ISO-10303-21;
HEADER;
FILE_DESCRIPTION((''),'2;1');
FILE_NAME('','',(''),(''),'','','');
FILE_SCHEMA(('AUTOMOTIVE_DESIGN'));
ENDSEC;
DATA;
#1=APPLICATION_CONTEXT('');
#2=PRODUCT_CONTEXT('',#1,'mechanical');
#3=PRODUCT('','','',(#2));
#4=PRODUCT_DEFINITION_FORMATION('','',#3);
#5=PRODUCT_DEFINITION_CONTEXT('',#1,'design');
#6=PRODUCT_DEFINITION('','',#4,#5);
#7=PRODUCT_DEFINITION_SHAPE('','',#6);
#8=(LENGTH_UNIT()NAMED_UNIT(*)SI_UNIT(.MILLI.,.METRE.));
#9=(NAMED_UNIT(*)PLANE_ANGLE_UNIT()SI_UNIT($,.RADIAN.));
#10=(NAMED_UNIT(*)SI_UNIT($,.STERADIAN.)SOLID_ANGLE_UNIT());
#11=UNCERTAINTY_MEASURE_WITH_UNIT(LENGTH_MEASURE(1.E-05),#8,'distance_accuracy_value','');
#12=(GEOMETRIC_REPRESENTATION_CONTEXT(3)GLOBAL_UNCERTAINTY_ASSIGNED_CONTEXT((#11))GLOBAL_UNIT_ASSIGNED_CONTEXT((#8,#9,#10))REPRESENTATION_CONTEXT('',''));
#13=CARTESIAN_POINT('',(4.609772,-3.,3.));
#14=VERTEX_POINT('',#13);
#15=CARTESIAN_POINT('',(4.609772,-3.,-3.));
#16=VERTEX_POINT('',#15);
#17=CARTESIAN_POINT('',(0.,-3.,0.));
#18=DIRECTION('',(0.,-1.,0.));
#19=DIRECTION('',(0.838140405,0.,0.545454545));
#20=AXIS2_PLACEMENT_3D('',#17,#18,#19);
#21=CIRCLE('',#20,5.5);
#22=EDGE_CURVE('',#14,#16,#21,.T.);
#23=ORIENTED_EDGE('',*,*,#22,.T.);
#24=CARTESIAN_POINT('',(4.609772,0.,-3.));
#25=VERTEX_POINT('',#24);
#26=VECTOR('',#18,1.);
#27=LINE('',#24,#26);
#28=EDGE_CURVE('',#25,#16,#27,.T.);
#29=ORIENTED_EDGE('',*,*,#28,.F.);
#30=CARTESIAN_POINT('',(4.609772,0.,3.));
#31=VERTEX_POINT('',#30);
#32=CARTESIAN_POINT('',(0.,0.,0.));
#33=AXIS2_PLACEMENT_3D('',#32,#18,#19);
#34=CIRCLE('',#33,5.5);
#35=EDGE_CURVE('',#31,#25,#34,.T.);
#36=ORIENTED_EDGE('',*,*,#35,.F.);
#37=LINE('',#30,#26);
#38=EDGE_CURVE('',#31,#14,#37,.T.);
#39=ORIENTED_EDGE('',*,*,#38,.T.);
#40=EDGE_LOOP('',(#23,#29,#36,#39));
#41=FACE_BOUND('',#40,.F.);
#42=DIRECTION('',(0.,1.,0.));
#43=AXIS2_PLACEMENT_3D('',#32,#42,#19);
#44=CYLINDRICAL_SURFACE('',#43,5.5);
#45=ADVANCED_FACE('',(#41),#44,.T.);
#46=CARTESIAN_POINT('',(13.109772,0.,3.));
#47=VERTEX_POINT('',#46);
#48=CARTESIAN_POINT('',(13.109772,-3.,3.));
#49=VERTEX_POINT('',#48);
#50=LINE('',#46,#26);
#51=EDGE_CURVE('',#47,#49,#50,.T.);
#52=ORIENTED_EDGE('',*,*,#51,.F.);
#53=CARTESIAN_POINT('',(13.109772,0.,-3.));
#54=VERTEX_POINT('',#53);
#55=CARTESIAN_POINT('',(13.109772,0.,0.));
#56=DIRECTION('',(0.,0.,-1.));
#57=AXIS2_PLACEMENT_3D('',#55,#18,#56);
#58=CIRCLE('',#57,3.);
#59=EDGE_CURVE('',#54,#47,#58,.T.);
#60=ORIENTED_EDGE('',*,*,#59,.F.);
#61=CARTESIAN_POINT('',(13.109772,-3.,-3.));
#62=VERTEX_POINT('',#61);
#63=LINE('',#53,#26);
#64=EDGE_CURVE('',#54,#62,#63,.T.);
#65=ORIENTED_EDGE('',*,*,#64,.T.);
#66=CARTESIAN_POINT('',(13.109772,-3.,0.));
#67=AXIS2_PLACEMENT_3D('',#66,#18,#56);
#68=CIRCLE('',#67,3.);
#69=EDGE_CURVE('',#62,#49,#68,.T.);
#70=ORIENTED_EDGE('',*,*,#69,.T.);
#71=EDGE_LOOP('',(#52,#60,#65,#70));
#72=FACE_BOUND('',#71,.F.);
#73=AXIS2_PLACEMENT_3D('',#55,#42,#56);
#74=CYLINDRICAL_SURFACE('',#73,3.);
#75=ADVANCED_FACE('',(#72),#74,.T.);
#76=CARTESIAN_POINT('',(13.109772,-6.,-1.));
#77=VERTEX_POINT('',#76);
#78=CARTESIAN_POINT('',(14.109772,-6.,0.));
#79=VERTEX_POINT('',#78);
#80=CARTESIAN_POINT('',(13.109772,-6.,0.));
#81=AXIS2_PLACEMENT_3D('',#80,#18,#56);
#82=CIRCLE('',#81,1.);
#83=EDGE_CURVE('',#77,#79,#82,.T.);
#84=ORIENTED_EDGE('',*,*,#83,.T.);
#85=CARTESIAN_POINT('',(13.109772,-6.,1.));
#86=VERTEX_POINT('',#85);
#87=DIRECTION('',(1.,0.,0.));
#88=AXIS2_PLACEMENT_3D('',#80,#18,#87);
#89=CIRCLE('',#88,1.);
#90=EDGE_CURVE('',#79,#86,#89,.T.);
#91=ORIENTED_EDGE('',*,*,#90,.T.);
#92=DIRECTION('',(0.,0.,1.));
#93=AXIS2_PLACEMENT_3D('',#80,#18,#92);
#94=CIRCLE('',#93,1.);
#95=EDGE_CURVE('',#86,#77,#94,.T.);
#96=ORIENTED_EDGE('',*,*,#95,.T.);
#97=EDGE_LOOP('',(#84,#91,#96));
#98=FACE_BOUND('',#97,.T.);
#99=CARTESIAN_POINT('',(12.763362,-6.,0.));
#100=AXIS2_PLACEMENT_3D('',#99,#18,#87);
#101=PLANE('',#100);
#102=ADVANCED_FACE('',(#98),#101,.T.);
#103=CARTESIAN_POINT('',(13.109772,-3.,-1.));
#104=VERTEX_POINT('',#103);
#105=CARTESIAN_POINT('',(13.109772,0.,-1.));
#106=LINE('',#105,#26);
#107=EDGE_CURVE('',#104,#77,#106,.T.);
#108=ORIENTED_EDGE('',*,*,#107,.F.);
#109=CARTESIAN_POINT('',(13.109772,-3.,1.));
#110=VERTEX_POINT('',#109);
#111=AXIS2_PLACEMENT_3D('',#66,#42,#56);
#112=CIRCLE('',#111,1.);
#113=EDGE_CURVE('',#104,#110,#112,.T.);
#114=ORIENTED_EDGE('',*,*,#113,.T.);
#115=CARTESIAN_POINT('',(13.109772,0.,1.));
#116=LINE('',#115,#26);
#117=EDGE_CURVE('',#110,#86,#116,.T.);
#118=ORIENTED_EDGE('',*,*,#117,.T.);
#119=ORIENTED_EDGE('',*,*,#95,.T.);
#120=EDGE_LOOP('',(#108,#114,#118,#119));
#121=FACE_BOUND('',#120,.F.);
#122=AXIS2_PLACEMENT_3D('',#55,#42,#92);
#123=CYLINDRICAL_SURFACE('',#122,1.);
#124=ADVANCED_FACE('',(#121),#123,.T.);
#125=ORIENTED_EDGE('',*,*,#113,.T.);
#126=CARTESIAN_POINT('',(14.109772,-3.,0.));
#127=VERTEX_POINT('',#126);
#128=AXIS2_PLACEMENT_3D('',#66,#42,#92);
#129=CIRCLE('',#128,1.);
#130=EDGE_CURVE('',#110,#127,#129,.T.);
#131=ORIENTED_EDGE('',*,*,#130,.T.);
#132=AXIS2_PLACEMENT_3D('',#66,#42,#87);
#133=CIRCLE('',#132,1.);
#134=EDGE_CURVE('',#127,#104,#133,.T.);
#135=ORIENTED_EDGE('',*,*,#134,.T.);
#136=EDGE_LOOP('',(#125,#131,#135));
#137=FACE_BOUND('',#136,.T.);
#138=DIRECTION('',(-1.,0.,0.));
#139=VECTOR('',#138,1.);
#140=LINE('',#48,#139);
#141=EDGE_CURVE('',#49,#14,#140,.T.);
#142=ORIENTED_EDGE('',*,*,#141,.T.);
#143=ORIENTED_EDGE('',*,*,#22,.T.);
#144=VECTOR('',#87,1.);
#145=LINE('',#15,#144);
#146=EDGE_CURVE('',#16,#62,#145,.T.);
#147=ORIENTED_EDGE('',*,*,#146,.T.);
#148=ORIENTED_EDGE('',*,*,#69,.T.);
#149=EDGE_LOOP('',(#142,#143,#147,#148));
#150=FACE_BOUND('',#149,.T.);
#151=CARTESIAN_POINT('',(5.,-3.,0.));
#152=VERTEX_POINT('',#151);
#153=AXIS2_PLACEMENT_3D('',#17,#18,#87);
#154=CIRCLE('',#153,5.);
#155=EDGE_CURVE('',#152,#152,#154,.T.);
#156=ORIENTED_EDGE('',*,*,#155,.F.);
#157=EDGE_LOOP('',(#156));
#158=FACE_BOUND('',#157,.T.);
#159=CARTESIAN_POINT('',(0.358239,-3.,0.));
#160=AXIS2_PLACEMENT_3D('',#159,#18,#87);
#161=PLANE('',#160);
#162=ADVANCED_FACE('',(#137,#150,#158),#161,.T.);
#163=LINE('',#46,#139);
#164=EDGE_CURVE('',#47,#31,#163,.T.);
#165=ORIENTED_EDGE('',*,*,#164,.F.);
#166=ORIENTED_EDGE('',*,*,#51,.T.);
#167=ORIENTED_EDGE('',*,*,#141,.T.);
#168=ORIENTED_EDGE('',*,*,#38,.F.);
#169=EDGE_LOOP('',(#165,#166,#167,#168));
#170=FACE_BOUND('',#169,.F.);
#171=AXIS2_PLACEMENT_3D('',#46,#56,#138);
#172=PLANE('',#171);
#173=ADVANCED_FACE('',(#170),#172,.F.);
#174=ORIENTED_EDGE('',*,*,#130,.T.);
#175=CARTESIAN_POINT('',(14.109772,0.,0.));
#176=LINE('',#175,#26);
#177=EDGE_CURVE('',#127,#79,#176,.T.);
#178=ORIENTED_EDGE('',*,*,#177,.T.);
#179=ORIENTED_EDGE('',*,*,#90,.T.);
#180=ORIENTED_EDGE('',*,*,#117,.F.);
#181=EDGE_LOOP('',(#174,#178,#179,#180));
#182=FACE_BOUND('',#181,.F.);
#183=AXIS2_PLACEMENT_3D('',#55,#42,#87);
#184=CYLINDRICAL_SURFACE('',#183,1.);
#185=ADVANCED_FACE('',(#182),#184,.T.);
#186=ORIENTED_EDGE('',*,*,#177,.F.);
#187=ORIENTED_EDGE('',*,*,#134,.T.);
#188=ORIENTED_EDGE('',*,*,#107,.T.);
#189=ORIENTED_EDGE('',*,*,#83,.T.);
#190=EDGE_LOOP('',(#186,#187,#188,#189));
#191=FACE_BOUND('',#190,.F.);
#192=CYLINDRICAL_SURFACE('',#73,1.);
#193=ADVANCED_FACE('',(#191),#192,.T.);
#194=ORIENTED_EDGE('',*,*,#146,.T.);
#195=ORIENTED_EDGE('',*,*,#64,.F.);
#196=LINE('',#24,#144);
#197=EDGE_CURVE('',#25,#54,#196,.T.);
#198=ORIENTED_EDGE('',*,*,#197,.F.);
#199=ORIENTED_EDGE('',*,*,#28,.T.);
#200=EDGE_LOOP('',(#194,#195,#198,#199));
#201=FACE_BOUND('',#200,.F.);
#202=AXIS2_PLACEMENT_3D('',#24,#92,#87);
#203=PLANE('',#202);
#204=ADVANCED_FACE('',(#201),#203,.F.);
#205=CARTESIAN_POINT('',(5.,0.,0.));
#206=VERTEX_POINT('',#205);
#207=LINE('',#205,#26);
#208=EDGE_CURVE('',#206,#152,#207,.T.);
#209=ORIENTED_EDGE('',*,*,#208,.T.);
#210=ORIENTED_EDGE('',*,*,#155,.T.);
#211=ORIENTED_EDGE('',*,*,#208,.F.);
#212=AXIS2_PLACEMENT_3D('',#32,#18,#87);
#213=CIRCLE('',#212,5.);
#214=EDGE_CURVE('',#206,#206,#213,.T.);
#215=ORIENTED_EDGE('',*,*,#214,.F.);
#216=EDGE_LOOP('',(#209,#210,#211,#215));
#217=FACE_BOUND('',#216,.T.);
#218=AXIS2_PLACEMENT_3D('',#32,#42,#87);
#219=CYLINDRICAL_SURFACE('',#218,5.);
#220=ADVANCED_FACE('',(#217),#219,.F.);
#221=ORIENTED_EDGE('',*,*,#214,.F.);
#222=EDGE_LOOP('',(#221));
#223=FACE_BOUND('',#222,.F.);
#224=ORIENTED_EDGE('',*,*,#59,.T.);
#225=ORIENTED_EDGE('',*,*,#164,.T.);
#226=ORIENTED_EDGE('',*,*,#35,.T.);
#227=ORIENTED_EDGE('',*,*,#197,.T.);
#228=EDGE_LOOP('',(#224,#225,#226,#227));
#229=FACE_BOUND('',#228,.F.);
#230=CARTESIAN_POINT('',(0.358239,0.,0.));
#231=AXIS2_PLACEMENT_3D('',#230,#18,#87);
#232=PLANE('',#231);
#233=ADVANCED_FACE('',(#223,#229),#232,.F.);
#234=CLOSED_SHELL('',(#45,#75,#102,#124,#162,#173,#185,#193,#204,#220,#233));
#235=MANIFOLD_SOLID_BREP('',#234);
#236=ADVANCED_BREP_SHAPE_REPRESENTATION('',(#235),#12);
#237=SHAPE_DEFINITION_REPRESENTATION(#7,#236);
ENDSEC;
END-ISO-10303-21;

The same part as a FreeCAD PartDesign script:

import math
import FreeCAD as App
import Part
import Sketcher
from FreeCAD import Vector

doc = App.newDocument("Part")
params = doc.addObject("Spreadsheet::Sheet", "Params")
for row, (alias, value) in enumerate([
    ("sketch1_diameter", "10 mm"),
    ("sketch1_radius", "3 mm"),
    ("sketch1_radius2", "1 mm"),
    ("sketch1_radius3", "5.5 mm"),
    ("sketch1_width", "8.5 mm"),
    ("pad1_length", "3 mm"),
    ("sketch2_radius", "1 mm"),
    ("pad2_length", "6 mm"),
], start=1):
    params.set(f"A{row}", alias)
    params.set(f"B{row}", "=" + value)
    params.setAlias(f"B{row}", alias)

body = doc.addObject("PartDesign::Body", "Body")

sketch1 = doc.addObject("Sketcher::SketchObject", "Sketch")
body.addObject(sketch1)
sketch1.AttachmentSupport = (doc.XZ_Plane, [""])
sketch1.MapMode = "FlatFace"
sketch1.addGeometry([
    Part.ArcOfCircle(Part.Circle(Vector(0, 0, 0), Vector(0, 0, 1), 5.5), math.radians(33), math.radians(327)),
    Part.LineSegment(Vector(4.6, -3, 0), Vector(13.1, -3, 0)),
    Part.ArcOfCircle(Part.Circle(Vector(13.1, 0, 0), Vector(0, 0, 1), 3), math.radians(-90), math.radians(90)),
    Part.LineSegment(Vector(13.1, 3, 0), Vector(4.6, 3, 0)),
    Part.ArcOfCircle(Part.Circle(Vector(13.1, 0, 0), Vector(0, 0, 1), 1), math.radians(90), math.radians(270)),
    Part.ArcOfCircle(Part.Circle(Vector(13.1, 0, 0), Vector(0, 0, 1), 1), math.radians(0), math.radians(90)),
    Part.ArcOfCircle(Part.Circle(Vector(13.1, 0, 0), Vector(0, 0, 1), 1), math.radians(-90), math.radians(0)),
    Part.Circle(Vector(0, 0, 0), Vector(0, 0, 1), 5),
], False)
sketch1.addConstraint([
    Sketcher.Constraint("Coincident", 0, 2, 1, 1),
    Sketcher.Constraint("Tangent", 1, 2, 2, 1),
    Sketcher.Constraint("Tangent", 2, 2, 3, 1),
    Sketcher.Constraint("Coincident", 3, 2, 0, 1),
    Sketcher.Constraint("Tangent", 4, 1, 5, 2),
    Sketcher.Constraint("Tangent", 5, 1, 6, 2),
    Sketcher.Constraint("Tangent", 6, 1, 4, 2),
    Sketcher.Constraint("Horizontal", 1),
    Sketcher.Constraint("Horizontal", 3),
    Sketcher.Constraint("Coincident", 0, 3, -1, 1),
    Sketcher.Constraint("Coincident", 7, 3, -1, 1),
    Sketcher.Constraint("Coincident", 4, 3, 2, 3),
    Sketcher.Constraint("Symmetric", 4, 1, 6, 1, -1),
    Sketcher.Constraint("PointOnObject", 5, 1, -1),
    Sketcher.Constraint("Vertical", 2, 2, 4, 1),
    Sketcher.Constraint("Diameter", 7, 10.0),
    Sketcher.Constraint("Radius", 2, 3.0),
    Sketcher.Constraint("Radius", 4, 1.0),
    Sketcher.Constraint("Radius", 0, 5.5),
    Sketcher.Constraint("DistanceX", 1, 1, 1, 2, 8.5),
])
sketch1.setExpression("Constraints[15]", "Params.sketch1_diameter")
sketch1.setExpression("Constraints[16]", "Params.sketch1_radius")
sketch1.setExpression("Constraints[17]", "Params.sketch1_radius2")
sketch1.setExpression("Constraints[18]", "Params.sketch1_radius3")
sketch1.setExpression("Constraints[19]", "Params.sketch1_width")
pad1 = doc.addObject("PartDesign::Pad", "Pad")
body.addObject(pad1)
pad1.Profile = sketch1
pad1.setExpression("Length", "Params.pad1_length")

sketch2 = doc.addObject("Sketcher::SketchObject", "Sketch001")
body.addObject(sketch2)
sketch2.AttachmentSupport = (doc.XZ_Plane, [""])
sketch2.MapMode = "FlatFace"
sketch2.addGeometry([
    Part.ArcOfCircle(Part.Circle(Vector(13.1, 0, 0), Vector(0, 0, 1), 1), math.radians(90), math.radians(270)),
    Part.ArcOfCircle(Part.Circle(Vector(13.1, 0, 0), Vector(0, 0, 1), 1), math.radians(-90), math.radians(0)),
    Part.ArcOfCircle(Part.Circle(Vector(13.1, 0, 0), Vector(0, 0, 1), 1), math.radians(0), math.radians(90)),
], False)
sketch2.addConstraint([
    Sketcher.Constraint("Tangent", 0, 2, 1, 1),
    Sketcher.Constraint("Tangent", 1, 2, 2, 1),
    Sketcher.Constraint("Tangent", 2, 2, 0, 1),
    Sketcher.Constraint("Symmetric", 0, 2, 2, 2, -1),
    Sketcher.Constraint("PointOnObject", 1, 2, -1),
    Sketcher.Constraint("Vertical", 2, 3, 0, 2),
    Sketcher.Constraint("Radius", 0, 1.0),
    Sketcher.Constraint("DistanceX", -1, 1, 0, 3, 13.109772),
])
sketch2.setExpression("Constraints[6]", "Params.sketch2_radius")
pad2 = doc.addObject("PartDesign::Pad", "Pad001")
body.addObject(pad2)
pad2.Profile = sketch2
pad2.setExpression("Length", "Params.pad2_length")

doc.recompute()
